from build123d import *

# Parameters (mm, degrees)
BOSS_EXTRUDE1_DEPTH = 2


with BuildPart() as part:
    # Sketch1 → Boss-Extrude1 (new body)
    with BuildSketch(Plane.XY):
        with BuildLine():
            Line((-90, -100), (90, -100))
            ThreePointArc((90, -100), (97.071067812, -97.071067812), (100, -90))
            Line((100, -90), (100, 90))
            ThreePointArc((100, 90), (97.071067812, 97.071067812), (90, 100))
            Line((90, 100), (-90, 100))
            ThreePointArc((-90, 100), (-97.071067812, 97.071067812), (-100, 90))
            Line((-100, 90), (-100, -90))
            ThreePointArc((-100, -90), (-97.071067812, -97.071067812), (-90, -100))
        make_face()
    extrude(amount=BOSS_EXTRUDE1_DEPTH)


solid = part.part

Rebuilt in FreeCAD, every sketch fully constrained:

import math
import FreeCAD as App
import Part
import Sketcher
Q = App.Units.Quantity

doc = App.newDocument("Part")
body = doc.addObject("PartDesign::Body", "Body")

# Sketch on XY plane
sketch1 = body.newObject("Sketcher::SketchObject", "Sketch")
sketch1.AttachmentSupport = (doc.getObject("XY_Plane"), [""])
sketch1.MapMode = "FlatFace"
sketch1.addGeometry([
    Part.LineSegment(App.Vector(-90, -100, 0), App.Vector(90, -100, 0)),  # 0
    Part.ArcOfCircle(Part.Circle(App.Vector(90, -90, 0), App.Vector(0, 0, 1), 10), math.radians(-90), math.radians(0)),  # 1
    Part.LineSegment(App.Vector(100, -90, 0), App.Vector(100, 90, 0)),  # 2
    Part.ArcOfCircle(Part.Circle(App.Vector(90, 90, 0), App.Vector(0, 0, 1), 10), math.radians(0), math.radians(90)),  # 3
    Part.LineSegment(App.Vector(90, 100, 0), App.Vector(-90, 100, 0)),  # 4
    Part.ArcOfCircle(Part.Circle(App.Vector(-90, 90, 0), App.Vector(0, 0, 1), 10), math.radians(90), math.radians(180)),  # 5
    Part.LineSegment(App.Vector(-100, 90, 0), App.Vector(-100, -90, 0)),  # 6
    Part.ArcOfCircle(Part.Circle(App.Vector(-90, -90, 0), App.Vector(0, 0, 1), 10), math.radians(180), math.radians(270)),  # 7
], False)
sketch1.addConstraint([
    Sketcher.Constraint("Tangent", 0, 2, 1, 1),
    Sketcher.Constraint("Tangent", 1, 2, 2, 1),
    Sketcher.Constraint("Tangent", 2, 2, 3, 1),
    Sketcher.Constraint("Tangent", 3, 2, 4, 1),
    Sketcher.Constraint("Tangent", 4, 2, 5, 1),
    Sketcher.Constraint("Tangent", 5, 2, 6, 1),
    Sketcher.Constraint("Tangent", 6, 2, 7, 1),
    Sketcher.Constraint("Tangent", 7, 2, 0, 1),
    Sketcher.Constraint("Horizontal", 0),
    Sketcher.Constraint("Vertical", 2),
    Sketcher.Constraint("Horizontal", 4),
    Sketcher.Constraint("Vertical", 6),
    Sketcher.Constraint("Equal", 1, 3),
    Sketcher.Constraint("Equal", 3, 5),
    Sketcher.Constraint("Equal", 5, 7),
    Sketcher.Constraint("Symmetric", 1, 3, 5, 3, -1, 1),
    Sketcher.Constraint("Equal", 4, 2),
    Sketcher.Constraint("Radius", 1, Q("10 mm")),
    Sketcher.Constraint("DistanceX", 0, 1, 0, 2, Q("180 mm")),
])
pad1 = body.newObject("PartDesign::Pad", "Pad")
pad1.Profile = sketch1
pad1.Length = 2

doc.recompute()
